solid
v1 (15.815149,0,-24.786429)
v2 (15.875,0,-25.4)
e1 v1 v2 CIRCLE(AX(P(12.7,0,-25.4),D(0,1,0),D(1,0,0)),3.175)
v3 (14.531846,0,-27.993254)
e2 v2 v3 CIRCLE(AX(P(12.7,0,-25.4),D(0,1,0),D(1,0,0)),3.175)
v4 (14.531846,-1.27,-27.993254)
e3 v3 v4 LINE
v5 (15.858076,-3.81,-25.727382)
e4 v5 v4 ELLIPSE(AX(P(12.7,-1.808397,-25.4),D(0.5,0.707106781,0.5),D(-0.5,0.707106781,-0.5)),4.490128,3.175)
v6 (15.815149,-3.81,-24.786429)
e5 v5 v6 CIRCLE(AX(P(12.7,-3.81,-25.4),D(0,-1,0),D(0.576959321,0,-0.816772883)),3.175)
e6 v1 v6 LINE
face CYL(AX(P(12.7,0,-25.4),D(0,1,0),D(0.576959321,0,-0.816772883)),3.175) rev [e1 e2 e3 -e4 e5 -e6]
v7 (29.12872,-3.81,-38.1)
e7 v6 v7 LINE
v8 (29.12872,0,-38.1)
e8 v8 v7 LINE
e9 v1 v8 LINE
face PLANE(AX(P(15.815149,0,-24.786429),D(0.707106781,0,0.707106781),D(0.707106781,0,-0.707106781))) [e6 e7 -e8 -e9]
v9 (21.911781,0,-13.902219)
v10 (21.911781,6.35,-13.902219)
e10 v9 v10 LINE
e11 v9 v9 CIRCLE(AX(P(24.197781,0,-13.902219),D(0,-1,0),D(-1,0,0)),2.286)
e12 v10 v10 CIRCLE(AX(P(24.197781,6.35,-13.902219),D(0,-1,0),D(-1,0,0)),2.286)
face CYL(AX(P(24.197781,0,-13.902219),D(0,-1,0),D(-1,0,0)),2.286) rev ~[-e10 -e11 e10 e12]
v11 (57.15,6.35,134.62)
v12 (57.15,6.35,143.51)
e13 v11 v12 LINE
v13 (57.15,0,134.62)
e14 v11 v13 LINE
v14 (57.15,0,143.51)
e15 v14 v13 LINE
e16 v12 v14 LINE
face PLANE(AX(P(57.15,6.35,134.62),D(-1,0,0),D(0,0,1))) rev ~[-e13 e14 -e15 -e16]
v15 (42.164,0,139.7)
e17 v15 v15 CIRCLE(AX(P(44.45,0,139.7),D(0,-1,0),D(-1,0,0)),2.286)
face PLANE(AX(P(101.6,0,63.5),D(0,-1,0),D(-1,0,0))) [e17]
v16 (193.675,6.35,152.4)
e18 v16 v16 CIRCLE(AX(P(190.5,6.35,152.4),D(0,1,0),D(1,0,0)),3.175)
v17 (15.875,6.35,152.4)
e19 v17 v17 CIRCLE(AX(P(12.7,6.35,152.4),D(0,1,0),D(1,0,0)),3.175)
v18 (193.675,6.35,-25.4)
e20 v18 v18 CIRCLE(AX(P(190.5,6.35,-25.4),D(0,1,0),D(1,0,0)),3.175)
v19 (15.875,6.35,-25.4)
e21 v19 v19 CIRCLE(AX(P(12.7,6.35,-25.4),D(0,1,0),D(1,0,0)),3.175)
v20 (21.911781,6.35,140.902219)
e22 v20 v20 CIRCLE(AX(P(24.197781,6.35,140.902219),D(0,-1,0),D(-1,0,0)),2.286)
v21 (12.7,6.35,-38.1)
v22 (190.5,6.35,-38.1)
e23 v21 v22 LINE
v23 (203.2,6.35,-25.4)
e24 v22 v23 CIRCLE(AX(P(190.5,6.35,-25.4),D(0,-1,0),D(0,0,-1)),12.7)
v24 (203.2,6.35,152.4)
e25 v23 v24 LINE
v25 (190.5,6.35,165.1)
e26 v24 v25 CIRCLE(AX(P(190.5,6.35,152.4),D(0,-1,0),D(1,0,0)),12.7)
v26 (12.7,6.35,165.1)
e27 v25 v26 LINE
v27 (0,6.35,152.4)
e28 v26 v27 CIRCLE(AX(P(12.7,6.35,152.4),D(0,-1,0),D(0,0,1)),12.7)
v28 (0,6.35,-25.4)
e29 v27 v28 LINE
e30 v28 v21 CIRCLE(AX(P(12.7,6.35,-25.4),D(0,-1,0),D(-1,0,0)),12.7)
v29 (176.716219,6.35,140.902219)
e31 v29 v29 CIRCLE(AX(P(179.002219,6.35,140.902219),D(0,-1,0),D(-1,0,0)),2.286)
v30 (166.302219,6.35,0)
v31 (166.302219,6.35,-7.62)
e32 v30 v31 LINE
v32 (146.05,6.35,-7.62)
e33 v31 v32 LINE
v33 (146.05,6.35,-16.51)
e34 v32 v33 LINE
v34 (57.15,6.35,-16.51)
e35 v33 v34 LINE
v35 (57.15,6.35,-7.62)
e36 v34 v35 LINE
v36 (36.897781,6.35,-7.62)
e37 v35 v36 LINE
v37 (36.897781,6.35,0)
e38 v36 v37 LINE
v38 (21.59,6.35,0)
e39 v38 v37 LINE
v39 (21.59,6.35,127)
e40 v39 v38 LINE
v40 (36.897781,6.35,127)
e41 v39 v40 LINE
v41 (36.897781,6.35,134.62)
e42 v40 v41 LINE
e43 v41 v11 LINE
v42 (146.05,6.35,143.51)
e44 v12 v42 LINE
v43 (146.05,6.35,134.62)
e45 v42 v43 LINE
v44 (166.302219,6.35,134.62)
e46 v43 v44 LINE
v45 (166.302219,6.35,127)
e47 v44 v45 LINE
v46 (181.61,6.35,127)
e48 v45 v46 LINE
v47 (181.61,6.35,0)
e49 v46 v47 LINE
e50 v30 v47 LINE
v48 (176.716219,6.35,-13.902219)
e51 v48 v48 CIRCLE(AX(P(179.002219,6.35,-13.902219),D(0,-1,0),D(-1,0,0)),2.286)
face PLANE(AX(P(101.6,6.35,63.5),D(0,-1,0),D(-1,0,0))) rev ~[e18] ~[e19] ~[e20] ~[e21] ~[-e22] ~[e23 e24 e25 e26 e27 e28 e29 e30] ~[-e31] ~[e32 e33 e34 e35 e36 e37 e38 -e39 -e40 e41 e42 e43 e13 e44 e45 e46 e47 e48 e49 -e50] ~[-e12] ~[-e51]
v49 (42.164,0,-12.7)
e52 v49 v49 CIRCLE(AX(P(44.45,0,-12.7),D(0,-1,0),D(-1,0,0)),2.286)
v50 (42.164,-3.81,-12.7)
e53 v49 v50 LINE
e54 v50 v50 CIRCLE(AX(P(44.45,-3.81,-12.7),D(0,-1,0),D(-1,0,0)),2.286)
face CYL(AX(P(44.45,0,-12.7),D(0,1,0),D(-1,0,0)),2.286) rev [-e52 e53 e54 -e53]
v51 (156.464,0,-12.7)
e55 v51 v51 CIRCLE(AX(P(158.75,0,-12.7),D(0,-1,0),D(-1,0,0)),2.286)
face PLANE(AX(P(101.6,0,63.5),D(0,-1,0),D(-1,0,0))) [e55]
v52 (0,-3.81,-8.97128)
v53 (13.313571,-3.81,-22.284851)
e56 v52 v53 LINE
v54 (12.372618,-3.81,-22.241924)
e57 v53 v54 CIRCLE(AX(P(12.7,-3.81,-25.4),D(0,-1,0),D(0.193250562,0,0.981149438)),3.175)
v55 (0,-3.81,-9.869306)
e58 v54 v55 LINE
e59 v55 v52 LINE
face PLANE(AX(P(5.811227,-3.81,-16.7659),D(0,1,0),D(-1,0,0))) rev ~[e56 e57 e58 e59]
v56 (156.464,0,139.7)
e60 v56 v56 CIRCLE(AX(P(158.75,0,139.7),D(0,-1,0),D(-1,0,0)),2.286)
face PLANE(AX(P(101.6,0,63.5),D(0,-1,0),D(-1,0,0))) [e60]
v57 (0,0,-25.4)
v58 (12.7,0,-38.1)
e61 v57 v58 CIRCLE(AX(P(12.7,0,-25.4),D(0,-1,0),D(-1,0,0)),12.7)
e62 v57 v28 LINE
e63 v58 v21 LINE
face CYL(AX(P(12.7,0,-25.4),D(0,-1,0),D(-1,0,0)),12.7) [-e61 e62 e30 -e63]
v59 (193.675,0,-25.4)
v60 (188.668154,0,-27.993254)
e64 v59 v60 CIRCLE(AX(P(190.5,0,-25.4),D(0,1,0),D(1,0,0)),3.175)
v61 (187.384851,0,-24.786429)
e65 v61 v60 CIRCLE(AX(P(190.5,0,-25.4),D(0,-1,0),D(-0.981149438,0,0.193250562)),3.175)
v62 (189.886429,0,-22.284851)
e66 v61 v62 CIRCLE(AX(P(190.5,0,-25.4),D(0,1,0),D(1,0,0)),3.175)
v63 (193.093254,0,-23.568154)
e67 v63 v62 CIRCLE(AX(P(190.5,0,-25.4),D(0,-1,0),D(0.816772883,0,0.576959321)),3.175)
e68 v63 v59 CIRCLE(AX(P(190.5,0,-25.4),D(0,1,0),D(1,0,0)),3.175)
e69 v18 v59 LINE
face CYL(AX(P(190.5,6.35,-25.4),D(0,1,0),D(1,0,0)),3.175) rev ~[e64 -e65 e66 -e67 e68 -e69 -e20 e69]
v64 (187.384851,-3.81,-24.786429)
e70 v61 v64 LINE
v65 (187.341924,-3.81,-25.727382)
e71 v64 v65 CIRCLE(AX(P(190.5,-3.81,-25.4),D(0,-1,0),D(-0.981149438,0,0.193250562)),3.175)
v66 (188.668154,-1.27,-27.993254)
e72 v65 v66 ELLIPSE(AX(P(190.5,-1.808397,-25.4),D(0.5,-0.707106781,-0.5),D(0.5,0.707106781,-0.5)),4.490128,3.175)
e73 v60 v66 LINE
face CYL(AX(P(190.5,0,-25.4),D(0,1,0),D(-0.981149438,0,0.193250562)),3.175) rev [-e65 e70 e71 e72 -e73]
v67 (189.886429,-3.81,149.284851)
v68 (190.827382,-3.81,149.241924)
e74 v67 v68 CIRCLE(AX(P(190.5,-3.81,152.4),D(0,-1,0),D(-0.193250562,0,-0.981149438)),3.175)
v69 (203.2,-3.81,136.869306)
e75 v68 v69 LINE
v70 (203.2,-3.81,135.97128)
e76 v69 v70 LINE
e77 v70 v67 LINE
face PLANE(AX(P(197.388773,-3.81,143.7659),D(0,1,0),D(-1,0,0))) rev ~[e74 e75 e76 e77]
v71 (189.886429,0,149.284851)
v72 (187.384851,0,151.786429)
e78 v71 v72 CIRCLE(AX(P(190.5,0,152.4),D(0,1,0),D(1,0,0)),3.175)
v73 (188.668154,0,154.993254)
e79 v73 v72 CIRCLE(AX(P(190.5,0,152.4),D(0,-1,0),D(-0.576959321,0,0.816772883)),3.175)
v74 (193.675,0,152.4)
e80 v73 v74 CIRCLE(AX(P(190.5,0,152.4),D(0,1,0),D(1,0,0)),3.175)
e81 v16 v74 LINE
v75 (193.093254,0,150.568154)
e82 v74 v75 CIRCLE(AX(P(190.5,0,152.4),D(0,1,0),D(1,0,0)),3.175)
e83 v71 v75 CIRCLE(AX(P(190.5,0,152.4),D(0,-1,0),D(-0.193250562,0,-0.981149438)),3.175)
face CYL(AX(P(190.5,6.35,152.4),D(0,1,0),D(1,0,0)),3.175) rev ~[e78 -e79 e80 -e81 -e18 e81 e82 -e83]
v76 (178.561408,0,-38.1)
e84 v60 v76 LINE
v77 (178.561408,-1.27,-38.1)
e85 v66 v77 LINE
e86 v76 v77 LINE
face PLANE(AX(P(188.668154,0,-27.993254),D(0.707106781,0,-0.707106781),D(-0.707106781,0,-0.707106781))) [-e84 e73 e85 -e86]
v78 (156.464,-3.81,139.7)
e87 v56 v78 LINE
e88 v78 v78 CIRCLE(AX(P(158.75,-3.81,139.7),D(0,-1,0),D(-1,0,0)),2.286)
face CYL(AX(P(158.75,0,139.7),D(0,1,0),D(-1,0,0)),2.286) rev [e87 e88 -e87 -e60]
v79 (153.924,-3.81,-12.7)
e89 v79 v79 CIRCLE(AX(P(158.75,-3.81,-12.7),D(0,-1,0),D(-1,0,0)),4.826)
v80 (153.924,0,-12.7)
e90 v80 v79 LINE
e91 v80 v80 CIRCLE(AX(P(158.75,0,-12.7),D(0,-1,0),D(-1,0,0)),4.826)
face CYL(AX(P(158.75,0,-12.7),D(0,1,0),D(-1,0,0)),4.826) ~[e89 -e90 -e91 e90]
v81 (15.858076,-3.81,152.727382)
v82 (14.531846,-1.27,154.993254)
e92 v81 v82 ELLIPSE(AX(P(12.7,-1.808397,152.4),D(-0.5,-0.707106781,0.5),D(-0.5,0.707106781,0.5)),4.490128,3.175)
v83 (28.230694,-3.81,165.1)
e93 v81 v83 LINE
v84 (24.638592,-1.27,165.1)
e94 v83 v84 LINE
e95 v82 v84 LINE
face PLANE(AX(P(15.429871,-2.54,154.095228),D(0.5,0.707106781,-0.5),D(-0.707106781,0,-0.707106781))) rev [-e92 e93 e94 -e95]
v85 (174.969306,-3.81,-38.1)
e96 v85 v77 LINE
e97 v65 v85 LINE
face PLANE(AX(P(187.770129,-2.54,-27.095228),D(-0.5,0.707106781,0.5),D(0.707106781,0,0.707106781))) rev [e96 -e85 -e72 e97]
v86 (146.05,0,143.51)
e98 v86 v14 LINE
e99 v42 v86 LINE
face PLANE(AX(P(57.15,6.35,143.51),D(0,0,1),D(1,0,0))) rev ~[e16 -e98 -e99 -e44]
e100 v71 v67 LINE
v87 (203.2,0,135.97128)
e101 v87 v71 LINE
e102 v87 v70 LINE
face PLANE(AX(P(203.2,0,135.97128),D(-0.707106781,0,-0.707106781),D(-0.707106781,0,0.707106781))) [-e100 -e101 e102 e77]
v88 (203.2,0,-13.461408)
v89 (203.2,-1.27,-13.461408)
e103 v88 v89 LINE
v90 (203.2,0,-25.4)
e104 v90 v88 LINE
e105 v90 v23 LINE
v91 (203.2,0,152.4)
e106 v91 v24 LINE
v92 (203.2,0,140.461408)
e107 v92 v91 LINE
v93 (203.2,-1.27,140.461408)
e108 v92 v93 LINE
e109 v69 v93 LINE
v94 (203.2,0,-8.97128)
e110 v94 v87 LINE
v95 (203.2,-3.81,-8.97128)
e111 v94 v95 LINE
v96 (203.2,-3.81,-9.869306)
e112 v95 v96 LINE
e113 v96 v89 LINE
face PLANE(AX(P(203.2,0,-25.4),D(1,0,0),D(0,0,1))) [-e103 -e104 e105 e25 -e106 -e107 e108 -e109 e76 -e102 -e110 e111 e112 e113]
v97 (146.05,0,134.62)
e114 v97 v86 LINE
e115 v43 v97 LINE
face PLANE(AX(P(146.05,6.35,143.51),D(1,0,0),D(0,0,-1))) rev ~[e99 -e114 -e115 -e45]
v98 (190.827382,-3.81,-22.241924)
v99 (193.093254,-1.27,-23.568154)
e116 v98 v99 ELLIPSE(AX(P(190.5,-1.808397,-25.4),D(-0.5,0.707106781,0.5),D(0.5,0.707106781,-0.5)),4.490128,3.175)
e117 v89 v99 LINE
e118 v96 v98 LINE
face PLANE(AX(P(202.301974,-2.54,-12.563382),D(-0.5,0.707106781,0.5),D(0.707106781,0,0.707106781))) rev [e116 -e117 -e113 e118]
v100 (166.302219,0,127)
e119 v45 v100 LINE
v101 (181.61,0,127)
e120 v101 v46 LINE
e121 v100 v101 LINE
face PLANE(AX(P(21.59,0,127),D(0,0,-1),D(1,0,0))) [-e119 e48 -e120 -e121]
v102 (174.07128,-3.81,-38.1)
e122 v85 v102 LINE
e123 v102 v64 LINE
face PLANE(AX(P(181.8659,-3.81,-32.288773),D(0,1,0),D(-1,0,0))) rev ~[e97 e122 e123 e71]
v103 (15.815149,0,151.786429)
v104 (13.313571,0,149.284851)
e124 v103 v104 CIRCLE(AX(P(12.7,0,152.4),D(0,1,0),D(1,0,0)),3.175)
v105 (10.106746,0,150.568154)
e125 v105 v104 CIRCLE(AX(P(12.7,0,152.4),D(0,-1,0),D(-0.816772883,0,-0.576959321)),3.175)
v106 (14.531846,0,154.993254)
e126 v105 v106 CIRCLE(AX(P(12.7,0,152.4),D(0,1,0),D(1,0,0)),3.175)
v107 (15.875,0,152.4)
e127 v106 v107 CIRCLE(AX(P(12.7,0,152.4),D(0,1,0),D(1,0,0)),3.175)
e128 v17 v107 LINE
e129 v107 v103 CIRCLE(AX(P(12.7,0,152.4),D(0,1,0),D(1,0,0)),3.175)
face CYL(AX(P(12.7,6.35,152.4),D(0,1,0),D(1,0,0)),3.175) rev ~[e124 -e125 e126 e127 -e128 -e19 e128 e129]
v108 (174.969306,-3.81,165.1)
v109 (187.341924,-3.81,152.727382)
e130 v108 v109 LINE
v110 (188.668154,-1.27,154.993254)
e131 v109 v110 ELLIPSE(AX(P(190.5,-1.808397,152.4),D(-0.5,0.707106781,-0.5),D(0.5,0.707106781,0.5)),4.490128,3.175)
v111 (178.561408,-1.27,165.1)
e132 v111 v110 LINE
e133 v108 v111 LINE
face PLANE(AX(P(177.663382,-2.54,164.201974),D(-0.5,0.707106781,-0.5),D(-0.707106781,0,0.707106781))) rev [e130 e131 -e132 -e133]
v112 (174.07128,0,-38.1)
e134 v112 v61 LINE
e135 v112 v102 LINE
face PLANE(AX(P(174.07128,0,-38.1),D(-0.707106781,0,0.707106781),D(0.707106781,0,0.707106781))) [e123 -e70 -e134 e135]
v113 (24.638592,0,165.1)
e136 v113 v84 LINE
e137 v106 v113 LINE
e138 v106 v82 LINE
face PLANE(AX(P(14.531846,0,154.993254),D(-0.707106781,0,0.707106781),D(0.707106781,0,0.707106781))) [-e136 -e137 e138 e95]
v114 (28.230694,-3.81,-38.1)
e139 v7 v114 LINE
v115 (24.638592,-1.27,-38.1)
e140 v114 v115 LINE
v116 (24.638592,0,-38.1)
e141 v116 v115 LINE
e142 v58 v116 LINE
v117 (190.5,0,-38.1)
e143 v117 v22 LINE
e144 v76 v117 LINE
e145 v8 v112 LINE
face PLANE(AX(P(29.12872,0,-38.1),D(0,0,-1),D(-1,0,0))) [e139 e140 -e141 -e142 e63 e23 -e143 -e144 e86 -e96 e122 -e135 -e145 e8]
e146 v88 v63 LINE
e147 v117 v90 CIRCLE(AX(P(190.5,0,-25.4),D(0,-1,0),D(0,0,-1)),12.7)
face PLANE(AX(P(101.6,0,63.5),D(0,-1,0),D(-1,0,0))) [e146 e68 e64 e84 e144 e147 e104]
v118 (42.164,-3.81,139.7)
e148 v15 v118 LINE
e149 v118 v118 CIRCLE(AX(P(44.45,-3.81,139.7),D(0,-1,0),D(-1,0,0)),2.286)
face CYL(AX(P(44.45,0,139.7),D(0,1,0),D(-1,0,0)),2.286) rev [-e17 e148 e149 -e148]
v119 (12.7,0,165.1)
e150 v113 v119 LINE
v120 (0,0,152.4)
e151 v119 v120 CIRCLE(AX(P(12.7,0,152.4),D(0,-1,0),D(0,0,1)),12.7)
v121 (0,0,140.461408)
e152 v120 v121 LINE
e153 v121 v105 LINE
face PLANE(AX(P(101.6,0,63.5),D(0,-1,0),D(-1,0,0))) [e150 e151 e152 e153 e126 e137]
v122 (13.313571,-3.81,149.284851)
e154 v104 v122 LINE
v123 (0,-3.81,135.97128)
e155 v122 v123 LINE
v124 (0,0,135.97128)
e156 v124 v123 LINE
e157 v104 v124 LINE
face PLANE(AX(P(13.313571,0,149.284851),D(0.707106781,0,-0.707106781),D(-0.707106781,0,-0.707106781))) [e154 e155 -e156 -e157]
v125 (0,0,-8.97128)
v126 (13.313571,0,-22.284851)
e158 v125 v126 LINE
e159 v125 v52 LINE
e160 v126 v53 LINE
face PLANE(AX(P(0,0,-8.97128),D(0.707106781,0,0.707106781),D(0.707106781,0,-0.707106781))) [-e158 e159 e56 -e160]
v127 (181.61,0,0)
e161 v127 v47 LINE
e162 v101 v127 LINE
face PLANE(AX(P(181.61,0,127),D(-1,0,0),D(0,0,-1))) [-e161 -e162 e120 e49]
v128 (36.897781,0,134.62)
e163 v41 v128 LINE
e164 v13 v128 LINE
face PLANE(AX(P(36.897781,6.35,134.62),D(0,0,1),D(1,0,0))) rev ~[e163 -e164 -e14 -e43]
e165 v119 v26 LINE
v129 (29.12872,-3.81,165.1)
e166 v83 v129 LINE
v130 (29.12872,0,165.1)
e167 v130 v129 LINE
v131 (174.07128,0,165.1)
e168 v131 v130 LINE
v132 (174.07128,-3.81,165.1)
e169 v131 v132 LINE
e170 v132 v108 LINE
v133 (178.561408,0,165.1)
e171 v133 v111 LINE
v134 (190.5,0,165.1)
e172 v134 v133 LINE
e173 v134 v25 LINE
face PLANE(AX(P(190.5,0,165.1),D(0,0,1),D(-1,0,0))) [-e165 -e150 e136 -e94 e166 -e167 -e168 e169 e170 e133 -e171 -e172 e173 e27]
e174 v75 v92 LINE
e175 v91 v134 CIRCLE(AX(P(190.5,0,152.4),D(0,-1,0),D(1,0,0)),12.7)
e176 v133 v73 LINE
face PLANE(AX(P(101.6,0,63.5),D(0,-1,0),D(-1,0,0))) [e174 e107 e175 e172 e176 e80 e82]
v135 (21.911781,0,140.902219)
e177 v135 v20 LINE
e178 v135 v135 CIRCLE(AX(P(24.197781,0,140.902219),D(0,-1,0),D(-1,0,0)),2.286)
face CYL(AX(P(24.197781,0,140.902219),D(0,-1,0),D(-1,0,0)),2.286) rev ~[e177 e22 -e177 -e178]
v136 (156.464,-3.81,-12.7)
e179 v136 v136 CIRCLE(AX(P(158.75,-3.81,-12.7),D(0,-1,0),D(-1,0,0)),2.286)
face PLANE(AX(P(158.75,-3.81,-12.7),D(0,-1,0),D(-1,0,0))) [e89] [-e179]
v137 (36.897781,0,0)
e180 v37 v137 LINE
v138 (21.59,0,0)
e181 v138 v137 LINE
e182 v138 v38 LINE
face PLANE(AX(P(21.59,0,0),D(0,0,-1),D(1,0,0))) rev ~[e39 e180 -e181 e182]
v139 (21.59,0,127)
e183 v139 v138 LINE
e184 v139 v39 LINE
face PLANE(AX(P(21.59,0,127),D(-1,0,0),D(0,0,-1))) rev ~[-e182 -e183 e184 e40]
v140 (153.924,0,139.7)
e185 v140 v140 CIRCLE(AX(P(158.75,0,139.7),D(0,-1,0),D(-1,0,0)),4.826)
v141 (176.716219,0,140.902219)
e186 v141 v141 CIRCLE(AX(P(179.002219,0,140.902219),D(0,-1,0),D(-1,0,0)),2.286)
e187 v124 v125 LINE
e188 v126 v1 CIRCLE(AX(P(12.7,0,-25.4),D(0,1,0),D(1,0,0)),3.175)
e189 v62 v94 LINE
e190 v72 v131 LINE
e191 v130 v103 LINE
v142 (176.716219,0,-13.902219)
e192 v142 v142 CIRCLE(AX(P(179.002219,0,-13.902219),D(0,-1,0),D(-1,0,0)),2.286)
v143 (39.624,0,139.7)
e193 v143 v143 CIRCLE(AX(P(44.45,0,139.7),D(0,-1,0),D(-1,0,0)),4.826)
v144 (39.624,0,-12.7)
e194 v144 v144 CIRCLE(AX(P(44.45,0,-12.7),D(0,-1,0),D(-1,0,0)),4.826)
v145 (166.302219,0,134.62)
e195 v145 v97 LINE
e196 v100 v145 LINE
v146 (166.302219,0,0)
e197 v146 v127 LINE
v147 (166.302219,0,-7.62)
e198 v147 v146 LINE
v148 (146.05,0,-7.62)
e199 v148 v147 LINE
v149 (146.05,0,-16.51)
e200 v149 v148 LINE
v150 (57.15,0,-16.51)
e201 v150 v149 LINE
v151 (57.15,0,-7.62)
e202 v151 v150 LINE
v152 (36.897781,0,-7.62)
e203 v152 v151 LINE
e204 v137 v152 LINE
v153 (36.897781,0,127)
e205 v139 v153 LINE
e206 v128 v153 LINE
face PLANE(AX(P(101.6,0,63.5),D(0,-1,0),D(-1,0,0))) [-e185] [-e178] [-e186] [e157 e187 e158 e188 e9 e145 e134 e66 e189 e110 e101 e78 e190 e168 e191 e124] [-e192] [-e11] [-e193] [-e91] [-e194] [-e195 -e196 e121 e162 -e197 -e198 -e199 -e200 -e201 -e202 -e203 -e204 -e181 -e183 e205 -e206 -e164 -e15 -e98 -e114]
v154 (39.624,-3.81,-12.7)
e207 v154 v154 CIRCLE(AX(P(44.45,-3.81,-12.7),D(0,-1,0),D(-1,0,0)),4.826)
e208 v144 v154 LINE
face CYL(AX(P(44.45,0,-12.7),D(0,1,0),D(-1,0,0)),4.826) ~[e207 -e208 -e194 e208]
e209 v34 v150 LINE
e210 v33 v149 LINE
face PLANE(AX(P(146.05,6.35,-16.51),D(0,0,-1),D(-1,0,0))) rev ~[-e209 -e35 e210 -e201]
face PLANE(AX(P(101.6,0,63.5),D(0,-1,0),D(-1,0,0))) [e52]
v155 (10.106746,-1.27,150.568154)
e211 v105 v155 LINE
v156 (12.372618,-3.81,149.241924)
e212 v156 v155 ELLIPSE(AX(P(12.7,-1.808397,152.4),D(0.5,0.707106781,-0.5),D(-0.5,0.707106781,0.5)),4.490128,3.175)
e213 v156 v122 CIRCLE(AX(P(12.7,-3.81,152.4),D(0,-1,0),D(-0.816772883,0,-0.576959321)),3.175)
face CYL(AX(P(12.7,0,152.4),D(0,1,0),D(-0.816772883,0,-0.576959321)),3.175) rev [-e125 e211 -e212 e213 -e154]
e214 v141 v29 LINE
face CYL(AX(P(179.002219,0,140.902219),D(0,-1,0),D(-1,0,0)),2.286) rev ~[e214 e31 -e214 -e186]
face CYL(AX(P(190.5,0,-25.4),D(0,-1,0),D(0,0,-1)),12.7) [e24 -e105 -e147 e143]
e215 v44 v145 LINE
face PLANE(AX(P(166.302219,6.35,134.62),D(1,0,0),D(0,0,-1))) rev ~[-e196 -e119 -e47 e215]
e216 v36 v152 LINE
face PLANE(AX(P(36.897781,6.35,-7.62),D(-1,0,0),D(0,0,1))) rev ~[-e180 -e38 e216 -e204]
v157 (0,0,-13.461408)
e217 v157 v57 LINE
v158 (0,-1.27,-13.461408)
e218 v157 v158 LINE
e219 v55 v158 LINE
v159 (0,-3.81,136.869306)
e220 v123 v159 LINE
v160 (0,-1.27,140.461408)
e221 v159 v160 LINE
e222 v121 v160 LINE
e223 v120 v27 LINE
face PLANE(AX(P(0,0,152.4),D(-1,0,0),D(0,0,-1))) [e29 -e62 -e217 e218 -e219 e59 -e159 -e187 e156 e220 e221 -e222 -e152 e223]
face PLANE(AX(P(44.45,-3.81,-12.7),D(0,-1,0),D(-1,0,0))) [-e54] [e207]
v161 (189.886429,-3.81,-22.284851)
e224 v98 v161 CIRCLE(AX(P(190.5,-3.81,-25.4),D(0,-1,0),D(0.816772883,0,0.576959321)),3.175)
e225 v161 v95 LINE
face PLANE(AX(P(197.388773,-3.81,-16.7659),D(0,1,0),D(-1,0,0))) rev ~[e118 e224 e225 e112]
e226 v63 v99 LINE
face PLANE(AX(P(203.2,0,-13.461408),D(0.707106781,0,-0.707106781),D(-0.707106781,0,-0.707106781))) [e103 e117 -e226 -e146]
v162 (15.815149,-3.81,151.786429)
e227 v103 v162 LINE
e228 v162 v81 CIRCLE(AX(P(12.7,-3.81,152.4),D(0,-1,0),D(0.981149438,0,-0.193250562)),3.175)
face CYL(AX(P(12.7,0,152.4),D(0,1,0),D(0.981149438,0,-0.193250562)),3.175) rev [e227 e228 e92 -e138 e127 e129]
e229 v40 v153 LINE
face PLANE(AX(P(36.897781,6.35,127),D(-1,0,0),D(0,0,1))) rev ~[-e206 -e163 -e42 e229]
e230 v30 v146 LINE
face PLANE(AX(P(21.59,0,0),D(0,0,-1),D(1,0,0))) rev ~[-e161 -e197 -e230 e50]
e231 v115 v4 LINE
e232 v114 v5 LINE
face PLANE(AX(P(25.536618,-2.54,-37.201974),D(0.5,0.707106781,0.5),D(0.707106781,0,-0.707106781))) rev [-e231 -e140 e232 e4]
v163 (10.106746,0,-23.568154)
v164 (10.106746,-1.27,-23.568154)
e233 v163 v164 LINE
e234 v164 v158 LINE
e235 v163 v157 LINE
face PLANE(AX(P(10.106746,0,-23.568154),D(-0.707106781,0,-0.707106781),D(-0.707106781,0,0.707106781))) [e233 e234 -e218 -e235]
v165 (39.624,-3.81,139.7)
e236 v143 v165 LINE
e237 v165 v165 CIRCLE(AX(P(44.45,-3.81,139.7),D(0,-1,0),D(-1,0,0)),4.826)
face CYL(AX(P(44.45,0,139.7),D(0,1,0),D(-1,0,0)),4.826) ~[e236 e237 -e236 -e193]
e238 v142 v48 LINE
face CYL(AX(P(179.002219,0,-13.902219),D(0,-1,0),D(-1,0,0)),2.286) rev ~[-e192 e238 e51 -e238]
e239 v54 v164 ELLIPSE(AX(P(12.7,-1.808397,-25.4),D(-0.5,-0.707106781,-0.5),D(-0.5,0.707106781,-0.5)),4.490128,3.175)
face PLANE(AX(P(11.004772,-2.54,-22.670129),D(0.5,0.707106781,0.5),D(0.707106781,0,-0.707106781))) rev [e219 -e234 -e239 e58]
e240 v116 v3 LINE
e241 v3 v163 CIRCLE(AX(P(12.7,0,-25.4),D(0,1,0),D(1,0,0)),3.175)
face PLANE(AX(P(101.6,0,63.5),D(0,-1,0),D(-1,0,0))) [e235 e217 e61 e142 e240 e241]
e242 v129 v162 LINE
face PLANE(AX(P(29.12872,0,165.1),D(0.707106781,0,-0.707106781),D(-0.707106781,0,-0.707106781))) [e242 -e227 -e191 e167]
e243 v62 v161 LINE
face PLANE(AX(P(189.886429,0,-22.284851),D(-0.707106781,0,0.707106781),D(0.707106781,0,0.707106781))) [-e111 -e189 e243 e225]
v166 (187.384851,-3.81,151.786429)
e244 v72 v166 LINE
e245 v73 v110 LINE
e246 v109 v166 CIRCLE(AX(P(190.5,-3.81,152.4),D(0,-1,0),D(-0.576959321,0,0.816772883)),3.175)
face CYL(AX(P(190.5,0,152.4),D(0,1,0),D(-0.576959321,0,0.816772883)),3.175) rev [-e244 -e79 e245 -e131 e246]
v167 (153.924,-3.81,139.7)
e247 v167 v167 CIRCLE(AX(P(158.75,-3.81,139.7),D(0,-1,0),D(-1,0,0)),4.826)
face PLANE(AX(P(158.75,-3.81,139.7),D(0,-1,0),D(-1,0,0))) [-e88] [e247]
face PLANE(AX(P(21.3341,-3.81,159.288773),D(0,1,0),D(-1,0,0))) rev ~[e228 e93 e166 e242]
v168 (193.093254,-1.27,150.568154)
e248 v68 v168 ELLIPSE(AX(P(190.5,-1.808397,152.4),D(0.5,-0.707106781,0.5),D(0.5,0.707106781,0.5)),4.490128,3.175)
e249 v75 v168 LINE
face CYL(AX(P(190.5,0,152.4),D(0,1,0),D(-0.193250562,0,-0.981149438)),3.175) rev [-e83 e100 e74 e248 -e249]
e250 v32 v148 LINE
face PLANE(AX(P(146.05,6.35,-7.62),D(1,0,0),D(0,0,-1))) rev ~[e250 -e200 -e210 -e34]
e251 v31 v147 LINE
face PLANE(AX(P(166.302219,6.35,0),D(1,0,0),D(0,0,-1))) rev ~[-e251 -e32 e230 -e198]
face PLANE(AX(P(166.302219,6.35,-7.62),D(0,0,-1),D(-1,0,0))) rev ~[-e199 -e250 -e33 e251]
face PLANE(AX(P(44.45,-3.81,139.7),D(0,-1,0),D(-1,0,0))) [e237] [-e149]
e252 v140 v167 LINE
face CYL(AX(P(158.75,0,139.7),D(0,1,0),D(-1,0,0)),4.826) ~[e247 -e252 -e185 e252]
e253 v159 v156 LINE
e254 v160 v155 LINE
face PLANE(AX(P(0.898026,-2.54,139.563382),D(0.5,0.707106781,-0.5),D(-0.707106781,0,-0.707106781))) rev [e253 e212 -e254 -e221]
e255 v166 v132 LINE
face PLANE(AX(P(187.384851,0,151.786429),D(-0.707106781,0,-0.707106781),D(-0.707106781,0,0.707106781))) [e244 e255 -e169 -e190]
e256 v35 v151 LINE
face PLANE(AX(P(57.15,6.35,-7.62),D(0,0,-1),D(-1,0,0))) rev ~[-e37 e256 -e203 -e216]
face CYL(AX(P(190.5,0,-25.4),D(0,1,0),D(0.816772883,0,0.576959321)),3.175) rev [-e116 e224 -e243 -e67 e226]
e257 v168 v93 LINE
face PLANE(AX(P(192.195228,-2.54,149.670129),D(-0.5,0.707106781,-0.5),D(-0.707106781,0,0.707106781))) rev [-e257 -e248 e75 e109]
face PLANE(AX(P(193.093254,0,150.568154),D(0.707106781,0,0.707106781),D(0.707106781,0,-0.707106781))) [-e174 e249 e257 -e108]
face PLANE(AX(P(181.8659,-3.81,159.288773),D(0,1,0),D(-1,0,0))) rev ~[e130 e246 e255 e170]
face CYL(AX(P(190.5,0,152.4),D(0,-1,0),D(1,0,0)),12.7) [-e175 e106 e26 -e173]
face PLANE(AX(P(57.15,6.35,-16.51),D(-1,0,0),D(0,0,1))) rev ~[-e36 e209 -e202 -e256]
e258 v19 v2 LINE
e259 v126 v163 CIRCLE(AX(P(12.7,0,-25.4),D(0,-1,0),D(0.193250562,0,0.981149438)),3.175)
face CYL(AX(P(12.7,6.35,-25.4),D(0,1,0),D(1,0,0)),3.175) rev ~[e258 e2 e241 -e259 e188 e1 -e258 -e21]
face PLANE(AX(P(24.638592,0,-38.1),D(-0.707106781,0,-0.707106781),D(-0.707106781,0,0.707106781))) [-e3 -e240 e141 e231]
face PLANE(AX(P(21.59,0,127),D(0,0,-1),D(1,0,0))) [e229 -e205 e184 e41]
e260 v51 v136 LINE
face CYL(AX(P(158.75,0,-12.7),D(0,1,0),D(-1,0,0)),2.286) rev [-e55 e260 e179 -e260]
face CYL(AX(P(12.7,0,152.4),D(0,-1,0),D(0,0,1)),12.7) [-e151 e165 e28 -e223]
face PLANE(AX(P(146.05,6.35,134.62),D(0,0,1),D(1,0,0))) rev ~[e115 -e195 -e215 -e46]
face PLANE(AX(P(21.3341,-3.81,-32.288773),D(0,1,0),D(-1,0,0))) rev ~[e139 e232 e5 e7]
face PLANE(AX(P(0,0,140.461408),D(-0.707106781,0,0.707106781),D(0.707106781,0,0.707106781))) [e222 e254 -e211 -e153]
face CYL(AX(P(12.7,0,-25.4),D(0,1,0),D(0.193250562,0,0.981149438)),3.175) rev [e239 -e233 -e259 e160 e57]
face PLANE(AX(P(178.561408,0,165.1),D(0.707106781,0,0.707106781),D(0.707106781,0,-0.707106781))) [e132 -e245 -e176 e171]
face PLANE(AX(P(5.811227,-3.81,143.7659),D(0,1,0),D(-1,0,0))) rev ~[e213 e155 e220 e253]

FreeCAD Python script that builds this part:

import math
import FreeCAD as App
import Part
import Sketcher
Q = App.Units.Quantity


def edges_at(feature, points):
    """Names of the edges that pass closest to the given points."""
    edges = feature.Shape.Edges
    near = lambda p: min(range(len(edges)), key=lambda i: edges[i].distToShape(Part.Vertex(*p))[0])
    return sorted({f"Edge{near(p) + 1}" for p in points})

doc = App.newDocument("Part")
body = doc.addObject("PartDesign::Body", "Body")

# Sketch on XZ plane
sketch1 = body.newObject("Sketcher::SketchObject", "Sketch")
sketch1.AttachmentSupport = (doc.getObject("XZ_Plane"), [""])
sketch1.MapMode = "FlatFace"
sketch1.addGeometry(Part.ArcOfCircle(Part.Circle(App.Vector(12.7, -25.4, 0), App.Vector(0, 0, 1), 12.7), math.radians(180), math.radians(270)), False)
sketch1.addGeometry(Part.LineSegment(App.Vector(0, -25.4, 0), App.Vector(0, 152.4, 0)), False)
sketch1.addGeometry(Part.ArcOfCircle(Part.Circle(App.Vector(12.7, 152.4, 0), App.Vector(0, 0, 1), 12.7), math.radians(90), math.radians(180)), False)
sketch1.addGeometry(Part.LineSegment(App.Vector(12.7, 165.1, 0), App.Vector(190.5, 165.1, 0)), False)
sketch1.addGeometry(Part.ArcOfCircle(Part.Circle(App.Vector(190.5, 152.4, 0), App.Vector(0, 0, 1), 12.7), math.radians(0), math.radians(90)), False)
sketch1.addGeometry(Part.LineSegment(App.Vector(203.2, 152.4, 0), App.Vector(203.2, -25.4, 0)), False)
sketch1.addGeometry(Part.ArcOfCircle(Part.Circle(App.Vector(190.5, -25.4, 0), App.Vector(0, 0, 1), 12.7), math.radians(-90), math.radians(0)), False)
sketch1.addGeometry(Part.LineSegment(App.Vector(190.5, -38.1, 0), App.Vector(12.7, -38.1, 0)), False)
sketch1.addGeometry(Part.LineSegment(App.Vector(21.59, 127, 0), App.Vector(21.59, 0, 0)), False)
sketch1.addGeometry(Part.LineSegment(App.Vector(21.59, 0, 0), App.Vector(181.61, 0, 0)), False)
sketch1.addGeometry(Part.LineSegment(App.Vector(181.61, 0, 0), App.Vector(181.61, 127, 0)), False)
sketch1.addGeometry(Part.LineSegment(App.Vector(181.61, 127, 0), App.Vector(21.59, 127, 0)), False)
sketch1.addConstraint(Sketcher.Constraint("Tangent", 0, 1, 1, 1))
sketch1.addConstraint(Sketcher.Constraint("Tangent", 1, 2, 2, 2))
sketch1.addConstraint(Sketcher.Constraint("Tangent", 2, 1, 3, 1))
sketch1.addConstraint(Sketcher.Constraint("Tangent", 3, 2, 4, 2))
sketch1.addConstraint(Sketcher.Constraint("Tangent", 4, 1, 5, 1))
sketch1.addConstraint(Sketcher.Constraint("Tangent", 5, 2, 6, 2))
sketch1.addConstraint(Sketcher.Constraint("Tangent", 6, 1, 7, 1))
sketch1.addConstraint(Sketcher.Constraint("Tangent", 7, 2, 0, 2))
sketch1.addConstraint(Sketcher.Constraint("Coincident", 8, 2, 9, 1))
sketch1.addConstraint(Sketcher.Constraint("Coincident", 9, 2, 10, 1))
sketch1.addConstraint(Sketcher.Constraint("Coincident", 10, 2, 11, 1))
sketch1.addConstraint(Sketcher.Constraint("Coincident", 11, 2, 8, 1))
sketch1.addConstraint(Sketcher.Constraint("Vertical", 1))
sketch1.addConstraint(Sketcher.Constraint("Horizontal", 3))
sketch1.addConstraint(Sketcher.Constraint("Vertical", 5))
sketch1.addConstraint(Sketcher.Constraint("Horizontal", 7))
sketch1.addConstraint(Sketcher.Constraint("Vertical", 8))
sketch1.addConstraint(Sketcher.Constraint("Horizontal", 9))
sketch1.addConstraint(Sketcher.Constraint("Vertical", 10))
sketch1.addConstraint(Sketcher.Constraint("Horizontal", 11))
sketch1.addConstraint(Sketcher.Constraint("Equal", 0, 2))
sketch1.addConstraint(Sketcher.Constraint("Equal", 2, 4))
sketch1.addConstraint(Sketcher.Constraint("Equal", 4, 6))
sketch1.addConstraint(Sketcher.Constraint("PointOnObject", 0, 1, -2))
sketch1.addConstraint(Sketcher.Constraint("PointOnObject", 8, 2, -1))
sketch1.addConstraint(Sketcher.Constraint("Equal", 7, 1))
sketch1.addConstraint(Sketcher.Constraint("Radius", 0, Q("0.5 in")))
sketch1.addConstraint(Sketcher.Constraint("DistanceX", 3, 1, 3, 2, Q("7 in")))
sketch1.addConstraint(Sketcher.Constraint("DistanceY", 8, 2, 8, 1, Q("5 in")))
sketch1.addConstraint(Sketcher.Constraint("DistanceX", 9, 1, 9, 2, Q("6.3 in")))
sketch1.addConstraint(Sketcher.Constraint("DistanceY", 0, 3, -1, 1, Q("1 in")))
sketch1.addConstraint(Sketcher.Constraint("DistanceX", -1, 1, 8, 2, Q("0.85 in")))
pad1 = body.newObject("PartDesign::Pad", "Pad")
pad1.Profile = sketch1
pad1.Length = Q("0.25 in")
pad1.Reversed = True

# Sketch on XZ plane
sketch2 = body.newObject("Sketcher::SketchObject", "Sketch001")
sketch2.AttachmentSupport = (doc.getObject("XZ_Plane"), [""])
sketch2.MapMode = "FlatFace"
sketch2.AttachmentOffset = App.Placement(App.Vector(0, 0, -0.25 * 25.4), App.Rotation())
sketch2.addGeometry(Part.Circle(App.Vector(12.7, -25.4, 0), App.Vector(0, 0, 1), 3.175), False)
sketch2.addGeometry(Part.Circle(App.Vector(190.5, -25.4, 0), App.Vector(0, 0, 1), 3.175), False)
sketch2.addGeometry(Part.Circle(App.Vector(190.5, 152.4, 0), App.Vector(0, 0, 1), 3.175), False)
sketch2.addGeometry(Part.Circle(App.Vector(12.7, 152.4, 0), App.Vector(0, 0, 1), 3.175), False)
sketch2.addConstraint(Sketcher.Constraint("Equal", 0, 1))
sketch2.addConstraint(Sketcher.Constraint("Equal", 1, 2))
sketch2.addConstraint(Sketcher.Constraint("Equal", 2, 3))
sketch2.addConstraint(Sketcher.Constraint("Horizontal", 0, 3, 1, 3))
sketch2.addConstraint(Sketcher.Constraint("Horizontal", 2, 3, 3, 3))
sketch2.addConstraint(Sketcher.Constraint("Vertical", 1, 3, 2, 3))
sketch2.addConstraint(Sketcher.Constraint("Vertical", 0, 3, 3, 3))
sketch2.addConstraint(Sketcher.Constraint("Diameter", 0, Q("0.25 in")))
sketch2.addConstraint(Sketcher.Constraint("DistanceY", 0, 3, -1, 1, Q("1 in")))
sketch2.addConstraint(Sketcher.Constraint("DistanceY", -1, 1, 2, 3, Q("6 in")))
sketch2.addConstraint(Sketcher.Constraint("DistanceX", 0, 3, 1, 3, Q("7 in")))
sketch2.addConstraint(Sketcher.Constraint("DistanceX", -1, 1, 0, 3, Q("0.5 in")))
pocket1 = body.newObject("PartDesign::Pocket", "Pocket")
pocket1.Profile = sketch2
pocket1.Type = "ThroughAll"
pocket1.Reversed = True

# Sketch on XZ plane
sketch3 = body.newObject("Sketcher::SketchObject", "Sketch002")
sketch3.AttachmentSupport = (doc.getObject("XZ_Plane"), [""])
sketch3.MapMode = "FlatFace"
sketch3.addGeometry(Part.Circle(App.Vector(24.197781, -13.902219, 0), App.Vector(0, 0, 1), 2.286), False)
sketch3.addGeometry(Part.Circle(App.Vector(24.197781, 140.902219, 0), App.Vector(0, 0, 1), 2.286), False)
sketch3.addGeometry(Part.Circle(App.Vector(179.002219, 140.902219, 0), App.Vector(0, 0, 1), 2.286), False)
sketch3.addGeometry(Part.Circle(App.Vector(179.002219, -13.902219, 0), App.Vector(0, 0, 1), 2.286), False)
sketch3.addConstraint(Sketcher.Constraint("Equal", 0, 1))
sketch3.addConstraint(Sketcher.Constraint("Equal", 1, 2))
sketch3.addConstraint(Sketcher.Constraint("Equal", 2, 3))
sketch3.addConstraint(Sketcher.Constraint("Horizontal", 1, 3, 2, 3))
sketch3.addConstraint(Sketcher.Constraint("Horizontal", 0, 3, 3, 3))
sketch3.addConstraint(Sketcher.Constraint("Vertical", 0, 3, 1, 3))
sketch3.addConstraint(Sketcher.Constraint("Vertical", 2, 3, 3, 3))
sketch3.addConstraint(Sketcher.Constraint("Diameter", 0, Q("0.18 in")))
sketch3.addConstraint(Sketcher.Constraint("DistanceX", -1, 1, 0, 3, Q("24.197781 mm")))
sketch3.addConstraint(Sketcher.Constraint("DistanceY", 0, 3, -1, 1, Q("13.902219 mm")))
sketch3.addConstraint(Sketcher.Constraint("DistanceY", -1, 1, 1, 3, Q("140.902219 mm")))
sketch3.addConstraint(Sketcher.Constraint("DistanceX", -1, 1, 2, 3, Q("179.002219 mm")))
pocket2 = body.newObject("PartDesign::Pocket", "Pocket001")
pocket2.Profile = sketch3
pocket2.Type = "ThroughAll"

# Sketch on XZ plane
sketch4 = body.newObject("Sketcher::SketchObject", "Sketch003")
sketch4.AttachmentSupport = (doc.getObject("XZ_Plane"), [""])
sketch4.MapMode = "FlatFace"
sketch4.addGeometry(Part.Circle(App.Vector(44.45, -12.7, 0), App.Vector(0, 0, 1), 4.826), False)
sketch4.addGeometry(Part.Circle(App.Vector(44.45, -12.7, 0), App.Vector(0, 0, 1), 2.286), False)
sketch4.addGeometry(Part.Circle(App.Vector(158.75, -12.7, 0), App.Vector(0, 0, 1), 4.826), False)
sketch4.addGeometry(Part.Circle(App.Vector(158.75, -12.7, 0), App.Vector(0, 0, 1), 2.286), False)
sketch4.addGeometry(Part.Circle(App.Vector(158.75, 139.7, 0), App.Vector(0, 0, 1), 4.826), False)
sketch4.addGeometry(Part.Circle(App.Vector(158.75, 139.7, 0), App.Vector(0, 0, 1), 2.286), False)
sketch4.addGeometry(Part.Circle(App.Vector(44.45, 139.7, 0), App.Vector(0, 0, 1), 4.826), False)
sketch4.addGeometry(Part.Circle(App.Vector(44.45, 139.7, 0), App.Vector(0, 0, 1), 2.286), False)
sketch4.addConstraint(Sketcher.Constraint("Coincident", 1, 3, 0, 3))
sketch4.addConstraint(Sketcher.Constraint("Coincident", 3, 3, 2, 3))
sketch4.addConstraint(Sketcher.Constraint("Coincident", 5, 3, 4, 3))
sketch4.addConstraint(Sketcher.Constraint("Coincident", 7, 3, 6, 3))
sketch4.addConstraint(Sketcher.Constraint("Equal", 0, 2))
sketch4.addConstraint(Sketcher.Constraint("Equal", 1, 3))
sketch4.addConstraint(Sketcher.Constraint("Equal", 2, 4))
sketch4.addConstraint(Sketcher.Constraint("Equal", 3, 5))
sketch4.addConstraint(Sketcher.Constraint("Equal", 4, 6))
sketch4.addConstraint(Sketcher.Constraint("Equal", 5, 7))
sketch4.addConstraint(Sketcher.Constraint("Horizontal", 1, 3, 2, 3))
sketch4.addConstraint(Sketcher.Constraint("Horizontal", 5, 3, 6, 3))
sketch4.addConstraint(Sketcher.Constraint("Vertical", 3, 3, 4, 3))
sketch4.addConstraint(Sketcher.Constraint("Vertical", 1, 3, 6, 3))
sketch4.addConstraint(Sketcher.Constraint("Diameter", 0, Q("0.38 in")))
sketch4.addConstraint(Sketcher.Constraint("Diameter", 1, Q("0.18 in")))
sketch4.addConstraint(Sketcher.Constraint("DistanceY", 2, 3, 4, 3, Q("6 in")))
sketch4.addConstraint(Sketcher.Constraint("DistanceY", 0, 3, -1, 1, Q("0.5 in")))
sketch4.addConstraint(Sketcher.Constraint("DistanceX", 0, 3, 2, 3, Q("4.5 in")))
sketch4.addConstraint(Sketcher.Constraint("DistanceX", -1, 1, 0, 3, Q("1.75 in")))
pad2 = body.newObject("PartDesign::Pad", "Pad001")
pad2.Profile = sketch4
pad2.Length = Q("0.15 in")

# Sketch on XZ plane
sketch5 = body.newObject("Sketcher::SketchObject", "Sketch004")
sketch5.AttachmentSupport = (doc.getObject("XZ_Plane"), [""])
sketch5.MapMode = "FlatFace"
sketch5.addGeometry(Part.LineSegment(App.Vector(187.384851, -24.786429, 0), App.Vector(174.07128, -38.1, 0)), False)
sketch5.addGeometry(Part.LineSegment(App.Vector(174.07128, -38.1, 0), App.Vector(178.561408, -38.1, 0)), False)
sketch5.addGeometry(Part.LineSegment(App.Vector(178.561408, -38.1, 0), App.Vector(188.668154, -27.993254, 0)), False)
sketch5.addGeometry(Part.ArcOfCircle(Part.Circle(App.Vector(190.5, -25.4, 0), App.Vector(0, 0, 1), 3.175), math.radians(168.857456), math.radians(234.76304)), False)
sketch5.addGeometry(Part.LineSegment(App.Vector(203.2, -13.461408, 0), App.Vector(203.2, -8.97128, 0)), False)
sketch5.addGeometry(Part.LineSegment(App.Vector(203.2, -8.97128, 0), App.Vector(189.886429, -22.284851, 0)), False)
sketch5.addGeometry(Part.ArcOfCircle(Part.Circle(App.Vector(190.5, -25.4, 0), App.Vector(0, 0, 1), 3.175), math.radians(35.23696), math.radians(101.142544)), False)
sketch5.addGeometry(Part.LineSegment(App.Vector(193.093254, -23.568154, 0), App.Vector(203.2, -13.461408, 0)), False)
sketch5.addGeometry(Part.LineSegment(App.Vector(0, -13.461408, 0), App.Vector(10.106746, -23.568154, 0)), False)
sketch5.addGeometry(Part.ArcOfCircle(Part.Circle(App.Vector(12.7, -25.4, 0), App.Vector(0, 0, 1), 3.175), math.radians(78.857456), math.radians(144.76304)), False)
sketch5.addGeometry(Part.LineSegment(App.Vector(13.313571, -22.284851, 0), App.Vector(0, -8.97128, 0)), False)
sketch5.addGeometry(Part.LineSegment(App.Vector(0, -8.97128, 0), App.Vector(0, -13.461408, 0)), False)
sketch5.addGeometry(Part.LineSegment(App.Vector(29.12872, -38.1, 0), App.Vector(15.815149, -24.786429, 0)), False)
sketch5.addGeometry(Part.ArcOfCircle(Part.Circle(App.Vector(12.7, -25.4, 0), App.Vector(0, 0, 1), 3.175), math.radians(-54.76304), math.radians(11.142544)), False)
sketch5.addGeometry(Part.LineSegment(App.Vector(14.531846, -27.993254, 0), App.Vector(24.638592, -38.1, 0)), False)
sketch5.addGeometry(Part.LineSegment(App.Vector(24.638592, -38.1, 0), App.Vector(29.12872, -38.1, 0)), False)
sketch5.addGeometry(Part.LineSegment(App.Vector(24.638592, 165.1, 0), App.Vector(14.531846, 154.993254, 0)), False)
sketch5.addGeometry(Part.ArcOfCircle(Part.Circle(App.Vector(12.7, 152.4, 0), App.Vector(0, 0, 1), 3.175), math.radians(-11.142544), math.radians(54.76304)), False)
sketch5.addGeometry(Part.LineSegment(App.Vector(15.815149, 151.786429, 0), App.Vector(29.12872, 165.1, 0)), False)
sketch5.addGeometry(Part.LineSegment(App.Vector(29.12872, 165.1, 0), App.Vector(24.638592, 165.1, 0)), False)
sketch5.addGeometry(Part.LineSegment(App.Vector(0, 135.97128, 0), App.Vector(13.313571, 149.284851, 0)), False)
sketch5.addGeometry(Part.ArcOfCircle(Part.Circle(App.Vector(12.7, 152.4, 0), App.Vector(0, 0, 1), 3.175), math.radians(-144.76304), math.radians(-78.857456)), False)
sketch5.addGeometry(Part.LineSegment(App.Vector(10.106746, 150.568154, 0), App.Vector(0, 140.461408, 0)), False)
sketch5.addGeometry(Part.LineSegment(App.Vector(0, 140.461408, 0), App.Vector(0, 135.97128, 0)), False)
sketch5.addGeometry(Part.LineSegment(App.Vector(203.2, 140.461408, 0), App.Vector(193.093254, 150.568154, 0)), False)
sketch5.addGeometry(Part.ArcOfCircle(Part.Circle(App.Vector(190.5, 152.4, 0), App.Vector(0, 0, 1), 3.175), math.radians(-101.142544), math.radians(-35.23696)), False)
sketch5.addGeometry(Part.LineSegment(App.Vector(189.886429, 149.284851, 0), App.Vector(203.2, 135.97128, 0)), False)
sketch5.addGeometry(Part.LineSegment(App.Vector(203.2, 135.97128, 0), App.Vector(203.2, 140.461408, 0)), False)
sketch5.addGeometry(Part.LineSegment(App.Vector(174.07128, 165.1, 0), App.Vector(187.384851, 151.786429, 0)), False)
sketch5.addGeometry(Part.ArcOfCircle(Part.Circle(App.Vector(190.5, 152.4, 0), App.Vector(0, 0, 1), 3.175), math.radians(125.23696), math.radians(191.142544)), False)
sketch5.addGeometry(Part.LineSegment(App.Vector(188.668154, 154.993254, 0), App.Vector(178.561408, 165.1, 0)), False)
sketch5.addGeometry(Part.LineSegment(App.Vector(178.561408, 165.1, 0), App.Vector(174.07128, 165.1, 0)), False)
sketch5.addConstraint(Sketcher.Constraint("Coincident", 0, 2, 1, 1))
sketch5.addConstraint(Sketcher.Constraint("Coincident", 1, 2, 2, 1))
sketch5.addConstraint(Sketcher.Constraint("Coincident", 2, 2, 3, 2))
sketch5.addConstraint(Sketcher.Constraint("Coincident", 3, 1, 0, 1))
sketch5.addConstraint(Sketcher.Constraint("Coincident", 4, 2, 5, 1))
sketch5.addConstraint(Sketcher.Constraint("Coincident", 5, 2, 6, 2))
sketch5.addConstraint(Sketcher.Constraint("Coincident", 6, 1, 7, 1))
sketch5.addConstraint(Sketcher.Constraint("Coincident", 7, 2, 4, 1))
sketch5.addConstraint(Sketcher.Constraint("Coincident", 8, 2, 9, 2))
sketch5.addConstraint(Sketcher.Constraint("Coincident", 9, 1, 10, 1))
sketch5.addConstraint(Sketcher.Constraint("Coincident", 10, 2, 11, 1))
sketch5.addConstraint(Sketcher.Constraint("Coincident", 11, 2, 8, 1))
sketch5.addConstraint(Sketcher.Constraint("Coincident", 12, 2, 13, 2))
sketch5.addConstraint(Sketcher.Constraint("Coincident", 13, 1, 14, 1))
sketch5.addConstraint(Sketcher.Constraint("Coincident", 14, 2, 15, 1))
sketch5.addConstraint(Sketcher.Constraint("Coincident", 15, 2, 12, 1))
sketch5.addConstraint(Sketcher.Constraint("Coincident", 16, 2, 17, 2))
sketch5.addConstraint(Sketcher.Constraint("Coincident", 17, 1, 18, 1))
sketch5.addConstraint(Sketcher.Constraint("Coincident", 18, 2, 19, 1))
sketch5.addConstraint(Sketcher.Constraint("Coincident", 19, 2, 16, 1))
sketch5.addConstraint(Sketcher.Constraint("Coincident", 20, 2, 21, 2))
sketch5.addConstraint(Sketcher.Constraint("Coincident", 21, 1, 22, 1))
sketch5.addConstraint(Sketcher.Constraint("Coincident", 22, 2, 23, 1))
sketch5.addConstraint(Sketcher.Constraint("Coincident", 23, 2, 20, 1))
sketch5.addConstraint(Sketcher.Constraint("Coincident", 24, 2, 25, 2))
sketch5.addConstraint(Sketcher.Constraint("Coincident", 25, 1, 26, 1))
sketch5.addConstraint(Sketcher.Constraint("Coincident", 26, 2, 27, 1))
sketch5.addConstraint(Sketcher.Constraint("Coincident", 27, 2, 24, 1))
sketch5.addConstraint(Sketcher.Constraint("Coincident", 28, 2, 29, 2))
sketch5.addConstraint(Sketcher.Constraint("Coincident", 29, 1, 30, 1))
sketch5.addConstraint(Sketcher.Constraint("Coincident", 30, 2, 31, 1))
sketch5.addConstraint(Sketcher.Constraint("Coincident", 31, 2, 28, 1))
sketch5.addConstraint(Sketcher.Constraint("Horizontal", 1))
sketch5.addConstraint(Sketcher.Constraint("Vertical", 4))
sketch5.addConstraint(Sketcher.Constraint("Vertical", 11))
sketch5.addConstraint(Sketcher.Constraint("Horizontal", 15))
sketch5.addConstraint(Sketcher.Constraint("Horizontal", 19))
sketch5.addConstraint(Sketcher.Constraint("Vertical", 23))
sketch5.addConstraint(Sketcher.Constraint("Vertical", 27))
sketch5.addConstraint(Sketcher.Constraint("Horizontal", 31))
sketch5.addConstraint(Sketcher.Constraint("Coincident", 6, 3, 3, 3))
sketch5.addConstraint(Sketcher.Constraint("Coincident", 13, 3, 9, 3))
sketch5.addConstraint(Sketcher.Constraint("Coincident", 21, 3, 17, 3))
sketch5.addConstraint(Sketcher.Constraint("Coincident", 29, 3, 25, 3))
sketch5.addConstraint(Sketcher.Constraint("Equal", 3, 6))
sketch5.addConstraint(Sketcher.Constraint("Equal", 6, 9))
sketch5.addConstraint(Sketcher.Constraint("Equal", 9, 13))
sketch5.addConstraint(Sketcher.Constraint("Equal", 13, 17))
sketch5.addConstraint(Sketcher.Constraint("Equal", 17, 21))
sketch5.addConstraint(Sketcher.Constraint("Equal", 21, 25))
sketch5.addConstraint(Sketcher.Constraint("Equal", 25, 29))
sketch5.addConstraint(Sketcher.Constraint("PointOnObject", 10, 2, -2))
sketch5.addConstraint(Sketcher.Constraint("PointOnObject", 22, 2, -2))
sketch5.addConstraint(Sketcher.Constraint("Parallel", 0, 2))
sketch5.addConstraint(Sketcher.Constraint("Parallel", 2, 5))
sketch5.addConstraint(Sketcher.Constraint("Parallel", 5, 7))
sketch5.addConstraint(Sketcher.Constraint("Perpendicular", 7, 8))
sketch5.addConstraint(Sketcher.Constraint("Parallel", 8, 10))
sketch5.addConstraint(Sketcher.Constraint("Parallel", 10, 12))
sketch5.addConstraint(Sketcher.Constraint("Parallel", 12, 14))
sketch5.addConstraint(Sketcher.Constraint("Perpendicular", 14, 16))
sketch5.addConstraint(Sketcher.Constraint("Parallel", 16, 18))
sketch5.addConstraint(Sketcher.Constraint("Parallel", 18, 20))
sketch5.addConstraint(Sketcher.Constraint("Parallel", 20, 22))
sketch5.addConstraint(Sketcher.Constraint("Perpendicular", 22, 24))
sketch5.addConstraint(Sketcher.Constraint("Parallel", 24, 26))
sketch5.addConstraint(Sketcher.Constraint("Parallel", 26, 28))
sketch5.addConstraint(Sketcher.Constraint("Parallel", 28, 30))
sketch5.addConstraint(Sketcher.Constraint("Horizontal", 6, 3, 9, 3))
sketch5.addConstraint(Sketcher.Constraint("Horizontal", 21, 3, 25, 3))
sketch5.addConstraint(Sketcher.Constraint("Horizontal", 6, 1, 8, 2))
sketch5.addConstraint(Sketcher.Constraint("Horizontal", 5, 2, 9, 1))
sketch5.addConstraint(Sketcher.Constraint("Horizontal", 4, 2, 10, 2))
sketch5.addConstraint(Sketcher.Constraint("Horizontal", 7, 2, 11, 2))
sketch5.addConstraint(Sketcher.Constraint("Horizontal", 3, 1, 12, 2))
sketch5.addConstraint(Sketcher.Constraint("Horizontal", 2, 2, 13, 1))
sketch5.addConstraint(Sketcher.Constraint("Horizontal", 1, 2, 14, 2))
sketch5.addConstraint(Sketcher.Constraint("Horizontal", 21, 1, 24, 2))
sketch5.addConstraint(Sketcher.Constraint("Horizontal", 20, 2, 25, 1))
sketch5.addConstraint(Sketcher.Constraint("Horizontal", 23, 2, 26, 2))
sketch5.addConstraint(Sketcher.Constraint("Horizontal", 17, 1, 28, 2))
sketch5.addConstraint(Sketcher.Constraint("Horizontal", 16, 2, 29, 1))
sketch5.addConstraint(Sketcher.Constraint("Horizontal", 19, 2, 30, 2))
sketch5.addConstraint(Sketcher.Constraint("Vertical", 13, 3, 17, 3))
sketch5.addConstraint(Sketcher.Constraint("Vertical", 6, 3, 25, 3))
sketch5.addConstraint(Sketcher.Constraint("Vertical", 13, 1, 16, 2))
sketch5.addConstraint(Sketcher.Constraint("Vertical", 12, 2, 17, 1))
sketch5.addConstraint(Sketcher.Constraint("Vertical", 15, 2, 18, 2))
sketch5.addConstraint(Sketcher.Constraint("Vertical", 9, 1, 20, 2))
sketch5.addConstraint(Sketcher.Constraint("Vertical", 8, 2, 21, 1))
sketch5.addConstraint(Sketcher.Constraint("Equal", 31, 4))
sketch5.addConstraint(Sketcher.Constraint("Equal", 0, 5))
sketch5.addConstraint(Sketcher.Constraint("Equal", 2, 7))
sketch5.addConstraint(Sketcher.Constraint("DistanceY", 3, 3, -1, 1, Q("1 in")))
sketch5.addConstraint(Sketcher.Constraint("DistanceY", -1, 1, 17, 3, Q("6 in")))
sketch5.addConstraint(Sketcher.Constraint("DistanceX", -1, 1, 4, 2, Q("8 in")))
sketch5.addConstraint(Sketcher.Constraint("Radius", 3, Q("0.125 in")))
sketch5.addConstraint(Sketcher.Constraint("DistanceX", 9, 3, 3, 3, Q("7 in")))
sketch5.addConstraint(Sketcher.Constraint("DistanceX", -1, 1, 0, 2, Q("6.8532 in")))
sketch5.addConstraint(Sketcher.Constraint("DistanceX", 1, 1, 1, 2, Q("4.490128 mm")))
pad3 = body.newObject("PartDesign::Pad", "Pad002")
pad3.Profile = sketch5
pad3.Length = Q("0.15 in")
doc.recompute()

chamfer = body.newObject("PartDesign::Chamfer", "Chamfer")
chamfer.Base = (pad3, edges_at(pad3, [
    (183.615, -3.81, -33.047),
    (198.147, -3.81, -18.515),
    (5.053, -3.81, -18.515),
    (19.585, -3.81, -33.047),
    (19.585, -3.81, 160.047),
    (5.053, -3.81, 145.515),
    (198.147, -3.81, 145.515),
    (183.615, -3.81, 160.047),
]))
chamfer.Size = Q("0.1 in")

# Sketch on XZ plane
sketch6 = body.newObject("Sketcher::SketchObject", "Sketch005")
sketch6.AttachmentSupport = (doc.getObject("XZ_Plane"), [""])
sketch6.MapMode = "FlatFace"
sketch6.AttachmentOffset = App.Placement(App.Vector(0, 0, -0.25 * 25.4), App.Rotation())
sketch6.addGeometry(Part.LineSegment(App.Vector(36.897781, 0, 0), App.Vector(166.302219, 0, 0)), False)
sketch6.addGeometry(Part.LineSegment(App.Vector(166.302219, 0, 0), App.Vector(166.302219, -7.62, 0)), False)
sketch6.addGeometry(Part.LineSegment(App.Vector(166.302219, -7.62, 0), App.Vector(146.05, -7.62, 0)), False)
sketch6.addGeometry(Part.LineSegment(App.Vector(146.05, -7.62, 0), App.Vector(146.05, -16.51, 0)), False)
sketch6.addGeometry(Part.LineSegment(App.Vector(146.05, -16.51, 0), App.Vector(57.15, -16.51, 0)), False)
sketch6.addGeometry(Part.LineSegment(App.Vector(57.15, -16.51, 0), App.Vector(57.15, -7.62, 0)), False)
sketch6.addGeometry(Part.LineSegment(App.Vector(57.15, -7.62, 0), App.Vector(36.897781, -7.62, 0)), False)
sketch6.addGeometry(Part.LineSegment(App.Vector(36.897781, -7.62, 0), App.Vector(36.897781, 0, 0)), False)
sketch6.addGeometry(Part.LineSegment(App.Vector(166.302219, 127, 0), App.Vector(36.897781, 127, 0)), False)
sketch6.addGeometry(Part.LineSegment(App.Vector(36.897781, 127, 0), App.Vector(36.897781, 134.62, 0)), False)
sketch6.addGeometry(Part.LineSegment(App.Vector(36.897781, 134.62, 0), App.Vector(57.15, 134.62, 0)), False)
sketch6.addGeometry(Part.LineSegment(App.Vector(57.15, 134.62, 0), App.Vector(57.15, 143.51, 0)), False)
sketch6.addGeometry(Part.LineSegment(App.Vector(57.15, 143.51, 0), App.Vector(146.05, 143.51, 0)), False)
sketch6.addGeometry(Part.LineSegment(App.Vector(146.05, 143.51, 0), App.Vector(146.05, 134.62, 0)), False)
sketch6.addGeometry(Part.LineSegment(App.Vector(146.05, 134.62, 0), App.Vector(166.302219, 134.62, 0)), False)
sketch6.addGeometry(Part.LineSegment(App.Vector(166.302219, 134.62, 0), App.Vector(166.302219, 127, 0)), False)
sketch6.addConstraint(Sketcher.Constraint("Coincident", 0, 2, 1, 1))
sketch6.addConstraint(Sketcher.Constraint("Coincident", 1, 2, 2, 1))
sketch6.addConstraint(Sketcher.Constraint("Coincident", 2, 2, 3, 1))
sketch6.addConstraint(Sketcher.Constraint("Coincident", 3, 2, 4, 1))
sketch6.addConstraint(Sketcher.Constraint("Coincident", 4, 2, 5, 1))
sketch6.addConstraint(Sketcher.Constraint("Coincident", 5, 2, 6, 1))
sketch6.addConstraint(Sketcher.Constraint("Coincident", 6, 2, 7, 1))
sketch6.addConstraint(Sketcher.Constraint("Coincident", 7, 2, 0, 1))
sketch6.addConstraint(Sketcher.Constraint("Coincident", 8, 2, 9, 1))
sketch6.addConstraint(Sketcher.Constraint("Coincident", 9, 2, 10, 1))
sketch6.addConstraint(Sketcher.Constraint("Coincident", 10, 2, 11, 1))
sketch6.addConstraint(Sketcher.Constraint("Coincident", 11, 2, 12, 1))
sketch6.addConstraint(Sketcher.Constraint("Coincident", 12, 2, 13, 1))
sketch6.addConstraint(Sketcher.Constraint("Coincident", 13, 2, 14, 1))
sketch6.addConstraint(Sketcher.Constraint("Coincident", 14, 2, 15, 1))
sketch6.addConstraint(Sketcher.Constraint("Coincident", 15, 2, 8, 1))
sketch6.addConstraint(Sketcher.Constraint("Horizontal", 0))
sketch6.addConstraint(Sketcher.Constraint("Vertical", 1))
sketch6.addConstraint(Sketcher.Constraint("Horizontal", 2))
sketch6.addConstraint(Sketcher.Constraint("Vertical", 3))
sketch6.addConstraint(Sketcher.Constraint("Horizontal", 4))
sketch6.addConstraint(Sketcher.Constraint("Vertical", 5))
sketch6.addConstraint(Sketcher.Constraint("Horizontal", 6))
sketch6.addConstraint(Sketcher.Constraint("Vertical", 7))
sketch6.addConstraint(Sketcher.Constraint("Horizontal", 8))
sketch6.addConstraint(Sketcher.Constraint("Vertical", 9))
sketch6.addConstraint(Sketcher.Constraint("Horizontal", 10))
sketch6.addConstraint(Sketcher.Constraint("Vertical", 11))
sketch6.addConstraint(Sketcher.Constraint("Horizontal", 12))
sketch6.addConstraint(Sketcher.Constraint("Vertical", 13))
sketch6.addConstraint(Sketcher.Constraint("Horizontal", 14))
sketch6.addConstraint(Sketcher.Constraint("Vertical", 15))
sketch6.addConstraint(Sketcher.Constraint("PointOnObject", 0, 2, -1))
sketch6.addConstraint(Sketcher.Constraint("Horizontal", 2, 2, 5, 2))
sketch6.addConstraint(Sketcher.Constraint("Horizontal", 10, 2, 13, 2))
sketch6.addConstraint(Sketcher.Constraint("Vertical", 7, 2, 8, 2))
sketch6.addConstraint(Sketcher.Constraint("Vertical", 5, 2, 10, 2))
sketch6.addConstraint(Sketcher.Constraint("Vertical", 3, 2, 12, 2))
sketch6.addConstraint(Sketcher.Constraint("Vertical", 1, 2, 14, 2))
sketch6.addConstraint(Sketcher.Constraint("Equal", 2, 6))
sketch6.addConstraint(Sketcher.Constraint("Equal", 7, 9))
sketch6.addConstraint(Sketcher.Constraint("Equal", 5, 11))
sketch6.addConstraint(Sketcher.Constraint("DistanceX", 4, 2, 4, 1, Q("3.5 in")))
sketch6.addConstraint(Sketcher.Constraint("DistanceY", 1, 2, 1, 1, Q("0.3 in")))
sketch6.addConstraint(Sketcher.Constraint("DistanceY", -1, 1, 8, 2, Q("5 in")))
sketch6.addConstraint(Sketcher.Constraint("DistanceY", 3, 2, 3, 1, Q("0.35 in")))
sketch6.addConstraint(Sketcher.Constraint("DistanceX", -1, 1, 2, 2, Q("5.75 in")))
sketch6.addConstraint(Sketcher.Constraint("DistanceX", 2, 2, 2, 1, Q("20.252219 mm")))
pocket3 = body.newObject("PartDesign::Pocket", "Pocket002")
pocket3.Profile = sketch6
pocket3.Type = "ThroughAll"
pocket3.Reversed = True

doc.recompute()
